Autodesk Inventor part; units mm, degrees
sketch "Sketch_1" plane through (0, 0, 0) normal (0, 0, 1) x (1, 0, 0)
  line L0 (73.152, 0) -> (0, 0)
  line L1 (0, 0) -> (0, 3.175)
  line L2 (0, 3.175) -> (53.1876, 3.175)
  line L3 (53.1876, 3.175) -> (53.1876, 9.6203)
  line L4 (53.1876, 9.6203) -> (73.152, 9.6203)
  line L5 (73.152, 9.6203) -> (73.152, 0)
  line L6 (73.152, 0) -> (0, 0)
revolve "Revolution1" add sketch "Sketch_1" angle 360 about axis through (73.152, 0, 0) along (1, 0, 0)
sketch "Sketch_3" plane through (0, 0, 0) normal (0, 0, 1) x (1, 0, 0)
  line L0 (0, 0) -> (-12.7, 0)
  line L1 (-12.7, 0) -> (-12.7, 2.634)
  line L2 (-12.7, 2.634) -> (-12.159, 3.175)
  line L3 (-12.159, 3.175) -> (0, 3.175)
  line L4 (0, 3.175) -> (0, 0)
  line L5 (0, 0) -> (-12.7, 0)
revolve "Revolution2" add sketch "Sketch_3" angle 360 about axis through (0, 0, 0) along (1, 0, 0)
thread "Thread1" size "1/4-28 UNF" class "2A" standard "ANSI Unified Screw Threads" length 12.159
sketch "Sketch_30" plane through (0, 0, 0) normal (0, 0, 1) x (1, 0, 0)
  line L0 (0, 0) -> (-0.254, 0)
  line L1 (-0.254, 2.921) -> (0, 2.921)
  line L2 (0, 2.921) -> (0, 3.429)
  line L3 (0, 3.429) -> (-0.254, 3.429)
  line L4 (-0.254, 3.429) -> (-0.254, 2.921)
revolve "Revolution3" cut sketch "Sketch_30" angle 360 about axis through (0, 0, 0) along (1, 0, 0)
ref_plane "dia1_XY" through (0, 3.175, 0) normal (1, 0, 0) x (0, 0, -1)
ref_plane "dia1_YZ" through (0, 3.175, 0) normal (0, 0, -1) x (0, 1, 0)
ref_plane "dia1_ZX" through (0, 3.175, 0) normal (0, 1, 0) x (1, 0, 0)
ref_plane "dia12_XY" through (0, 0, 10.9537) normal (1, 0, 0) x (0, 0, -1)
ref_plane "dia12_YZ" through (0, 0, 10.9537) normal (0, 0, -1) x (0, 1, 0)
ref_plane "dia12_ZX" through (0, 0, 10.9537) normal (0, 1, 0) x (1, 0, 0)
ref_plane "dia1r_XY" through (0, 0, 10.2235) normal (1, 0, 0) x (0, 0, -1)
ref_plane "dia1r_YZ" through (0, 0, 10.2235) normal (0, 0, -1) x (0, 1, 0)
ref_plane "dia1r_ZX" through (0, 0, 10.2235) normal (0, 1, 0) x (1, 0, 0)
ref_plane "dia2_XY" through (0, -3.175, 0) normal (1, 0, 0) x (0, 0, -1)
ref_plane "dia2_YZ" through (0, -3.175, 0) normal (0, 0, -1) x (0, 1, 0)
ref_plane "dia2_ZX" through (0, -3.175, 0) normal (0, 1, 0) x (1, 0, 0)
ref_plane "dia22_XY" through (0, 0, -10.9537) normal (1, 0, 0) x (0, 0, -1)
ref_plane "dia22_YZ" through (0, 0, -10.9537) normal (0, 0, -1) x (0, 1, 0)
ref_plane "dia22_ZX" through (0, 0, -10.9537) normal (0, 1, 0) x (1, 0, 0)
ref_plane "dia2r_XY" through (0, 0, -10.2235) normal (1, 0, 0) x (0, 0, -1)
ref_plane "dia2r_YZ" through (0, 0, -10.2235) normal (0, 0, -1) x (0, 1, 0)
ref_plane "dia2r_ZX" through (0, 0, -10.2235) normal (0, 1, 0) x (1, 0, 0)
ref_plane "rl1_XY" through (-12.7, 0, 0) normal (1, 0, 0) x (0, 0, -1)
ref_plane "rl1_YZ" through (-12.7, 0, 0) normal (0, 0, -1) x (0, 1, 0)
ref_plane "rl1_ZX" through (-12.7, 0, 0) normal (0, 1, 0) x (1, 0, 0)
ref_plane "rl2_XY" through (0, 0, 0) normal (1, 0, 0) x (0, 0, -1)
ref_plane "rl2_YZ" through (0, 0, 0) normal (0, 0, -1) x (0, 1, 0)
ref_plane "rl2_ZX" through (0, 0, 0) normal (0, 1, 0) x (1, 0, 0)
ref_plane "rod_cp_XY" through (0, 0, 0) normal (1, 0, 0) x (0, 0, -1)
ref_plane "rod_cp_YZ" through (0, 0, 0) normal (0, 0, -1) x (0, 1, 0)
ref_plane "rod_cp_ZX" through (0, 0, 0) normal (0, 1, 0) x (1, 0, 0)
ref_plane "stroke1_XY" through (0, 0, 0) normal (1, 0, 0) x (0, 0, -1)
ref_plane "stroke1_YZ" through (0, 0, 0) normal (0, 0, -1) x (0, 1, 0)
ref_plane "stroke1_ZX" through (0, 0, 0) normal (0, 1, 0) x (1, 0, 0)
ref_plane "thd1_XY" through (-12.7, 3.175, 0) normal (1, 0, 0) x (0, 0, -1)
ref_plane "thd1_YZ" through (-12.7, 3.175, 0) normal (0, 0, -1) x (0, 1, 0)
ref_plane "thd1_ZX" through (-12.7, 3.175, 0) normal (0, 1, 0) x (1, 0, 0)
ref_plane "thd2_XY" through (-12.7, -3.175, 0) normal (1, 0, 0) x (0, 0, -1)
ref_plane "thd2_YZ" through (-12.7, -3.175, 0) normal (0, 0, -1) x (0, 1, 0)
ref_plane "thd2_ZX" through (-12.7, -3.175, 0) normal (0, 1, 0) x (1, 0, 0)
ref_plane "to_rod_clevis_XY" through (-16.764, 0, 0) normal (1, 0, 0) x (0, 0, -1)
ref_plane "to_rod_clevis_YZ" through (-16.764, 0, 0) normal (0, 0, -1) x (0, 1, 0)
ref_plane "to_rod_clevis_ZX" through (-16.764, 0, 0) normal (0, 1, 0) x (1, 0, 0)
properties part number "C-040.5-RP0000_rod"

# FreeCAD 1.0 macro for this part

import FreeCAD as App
import Part
import Sketcher

V = App.Vector
Q = App.Units.Quantity

doc = App.newDocument("Part")
params = doc.addObject("Spreadsheet::Sheet", "Params")
for row, (alias, value) in enumerate([
    ("sketch1_width", "2.88 in"),
    ("sketch1_width2", "0.786 in"),
    ("sketch1_height", "0.125 in"),
    ("revolution_angle", "360 deg"),
    ("sketch2_width", "0.5 in"),
    ("sketch2_height", "0.125 in"),
    ("revolution2_angle", "360 deg"),
    ("sketch3_width", "0.01 in"),
    ("sketch3_height", "0.02 in"),
    ("groove_angle", "360 deg"),
], start=1):
    params.set(f"A{row}", alias)
    params.set(f"B{row}", "=" + value)
    params.setAlias(f"B{row}", alias)

body = doc.addObject("PartDesign::Body", "Body")

# Sketch on XY plane
sketch1 = body.newObject("Sketcher::SketchObject", "Sketch")
sketch1.AttachmentSupport = (doc.getObject("XY_Plane"), [""])
sketch1.MapMode = "FlatFace"
sketch1.addGeometry([
    Part.LineSegment(V(0, 0, 0), V(73.2, 0, 0)),  # 0
    Part.LineSegment(V(73.2, 0, 0), V(73.2, 9.6, 0)),  # 1
    Part.LineSegment(V(73.2, 9.6, 0), V(53.2, 9.6, 0)),  # 2
    Part.LineSegment(V(53.2, 9.6, 0), V(53.2, 3.2, 0)),  # 3
    Part.LineSegment(V(53.2, 3.2, 0), V(0, 3.2, 0)),  # 4
    Part.LineSegment(V(0, 3.2, 0), V(0, 0, 0)),  # 5
], False)
sketch1.addConstraint([
    Sketcher.Constraint("Coincident", 0, 2, 1, 1),
    Sketcher.Constraint("Coincident", 1, 2, 2, 1),
    Sketcher.Constraint("Coincident", 2, 2, 3, 1),
    Sketcher.Constraint("Coincident", 3, 2, 4, 1),
    Sketcher.Constraint("Coincident", 4, 2, 5, 1),
    Sketcher.Constraint("Coincident", 5, 2, 0, 1),
    Sketcher.Constraint("Horizontal", 0),
    Sketcher.Constraint("Vertical", 1),
    Sketcher.Constraint("Horizontal", 2),
    Sketcher.Constraint("Vertical", 3),
    Sketcher.Constraint("Horizontal", 4),
    Sketcher.Constraint("Vertical", 5),
    Sketcher.Constraint("Coincident", 5, 2, -1, 1),
    Sketcher.Constraint("DistanceX", 0, 1, 0, 2, Q("2.88 in")),
    Sketcher.Constraint("DistanceX", 2, 2, 2, 1, Q("0.786 in")),
    Sketcher.Constraint("DistanceY", 5, 2, 5, 1, Q("0.125 in")),
    Sketcher.Constraint("DistanceY", 1, 1, 1, 2, 9.6203),
])
sketch1.setExpression("Constraints[13]", "Params.sketch1_width")
sketch1.setExpression("Constraints[14]", "Params.sketch1_width2")
sketch1.setExpression("Constraints[15]", "Params.sketch1_height")
revolution = body.newObject("PartDesign::Revolution", "Revolution")
revolution.Profile = sketch1
revolution.ReferenceAxis = (sketch1, ["H_Axis"])
revolution.setExpression("Angle", "Params.revolution_angle")

# Sketch on XY plane
sketch2 = body.newObject("Sketcher::SketchObject", "Sketch001")
sketch2.AttachmentSupport = (doc.getObject("XY_Plane"), [""])
sketch2.MapMode = "FlatFace"
sketch2.addGeometry([
    Part.LineSegment(V(-12.7, 0, 0), V(0, 0, 0)),  # 0
    Part.LineSegment(V(0, 0, 0), V(0, 3.2, 0)),  # 1
    Part.LineSegment(V(0, 3.2, 0), V(-12.2, 3.2, 0)),  # 2
    Part.LineSegment(V(-12.2, 3.2, 0), V(-12.7, 2.6, 0)),  # 3
    Part.LineSegment(V(-12.7, 2.6, 0), V(-12.7, 0, 0)),  # 4
], False)
sketch2.addConstraint([
    Sketcher.Constraint("Coincident", 0, 2, 1, 1),
    Sketcher.Constraint("Coincident", 1, 2, 2, 1),
    Sketcher.Constraint("Coincident", 2, 2, 3, 1),
    Sketcher.Constraint("Coincident", 3, 2, 4, 1),
    Sketcher.Constraint("Coincident", 4, 2, 0, 1),
    Sketcher.Constraint("Horizontal", 0),
    Sketcher.Constraint("Vertical", 1),
    Sketcher.Constraint("Horizontal", 2),
    Sketcher.Constraint("Vertical", 4),
    Sketcher.Constraint("Coincident", 0, 2, -1, 1),
    Sketcher.Constraint("DistanceX", 0, 1, 0, 2, Q("0.5 in")),
    Sketcher.Constraint("Angle", 3, Q("-135 deg")),
    Sketcher.Constraint("DistanceY", 1, 1, 1, 2, Q("0.125 in")),
    Sketcher.Constraint("DistanceX", 2, 2, 2, 1, Q("0.4787 in")),
])
sketch2.setExpression("Constraints[10]", "Params.sketch2_width")
sketch2.setExpression("Constraints[12]", "Params.sketch2_height")
revolution2 = body.newObject("PartDesign::Revolution", "Revolution001")
revolution2.Profile = sketch2
revolution2.ReferenceAxis = (sketch2, ["H_Axis"])
revolution2.setExpression("Angle", "Params.revolution2_angle")

# Sketch on XY plane
sketch3 = body.newObject("Sketcher::SketchObject", "Sketch002")
sketch3.AttachmentSupport = (doc.getObject("XY_Plane"), [""])
sketch3.MapMode = "FlatFace"
sketch3.addGeometry([
    Part.LineSegment(V(-0.25, 3.43, 0), V(-0.25, 2.92, 0)),
    Part.LineSegment(V(-0.25, 2.92, 0), V(0, 2.92, 0)),
    Part.LineSegment(V(0, 2.92, 0), V(0, 3.43, 0)),
    Part.LineSegment(V(0, 3.43, 0), V(-0.25, 3.43, 0)),
], False)
sketch3.addConstraint([
    Sketcher.Constraint("Coincident", 0, 2, 1, 1),
    Sketcher.Constraint("Coincident", 1, 2, 2, 1),
    Sketcher.Constraint("Coincident", 2, 2, 3, 1),
    Sketcher.Constraint("Coincident", 3, 2, 0, 1),
    Sketcher.Constraint("Vertical", 0),
    Sketcher.Constraint("Horizontal", 1),
    Sketcher.Constraint("Vertical", 2),
    Sketcher.Constraint("Horizontal", 3),
    Sketcher.Constraint("PointOnObject", 1, 2, -2),
    Sketcher.Constraint("DistanceX", 1, 1, 1, 2, Q("0.01 in")),
    Sketcher.Constraint("DistanceY", 0, 2, 0, 1, Q("0.02 in")),
    Sketcher.Constraint("DistanceY", -1, 1, 0, 2, Q("0.115 in")),
])
sketch3.setExpression("Constraints[9]", "Params.sketch3_width")
sketch3.setExpression("Constraints[10]", "Params.sketch3_height")
groove = body.newObject("PartDesign::Groove", "Groove")
groove.Profile = sketch3
groove.ReferenceAxis = (sketch3, ["H_Axis"])
groove.setExpression("Angle", "Params.groove_angle")

doc.recompute()
